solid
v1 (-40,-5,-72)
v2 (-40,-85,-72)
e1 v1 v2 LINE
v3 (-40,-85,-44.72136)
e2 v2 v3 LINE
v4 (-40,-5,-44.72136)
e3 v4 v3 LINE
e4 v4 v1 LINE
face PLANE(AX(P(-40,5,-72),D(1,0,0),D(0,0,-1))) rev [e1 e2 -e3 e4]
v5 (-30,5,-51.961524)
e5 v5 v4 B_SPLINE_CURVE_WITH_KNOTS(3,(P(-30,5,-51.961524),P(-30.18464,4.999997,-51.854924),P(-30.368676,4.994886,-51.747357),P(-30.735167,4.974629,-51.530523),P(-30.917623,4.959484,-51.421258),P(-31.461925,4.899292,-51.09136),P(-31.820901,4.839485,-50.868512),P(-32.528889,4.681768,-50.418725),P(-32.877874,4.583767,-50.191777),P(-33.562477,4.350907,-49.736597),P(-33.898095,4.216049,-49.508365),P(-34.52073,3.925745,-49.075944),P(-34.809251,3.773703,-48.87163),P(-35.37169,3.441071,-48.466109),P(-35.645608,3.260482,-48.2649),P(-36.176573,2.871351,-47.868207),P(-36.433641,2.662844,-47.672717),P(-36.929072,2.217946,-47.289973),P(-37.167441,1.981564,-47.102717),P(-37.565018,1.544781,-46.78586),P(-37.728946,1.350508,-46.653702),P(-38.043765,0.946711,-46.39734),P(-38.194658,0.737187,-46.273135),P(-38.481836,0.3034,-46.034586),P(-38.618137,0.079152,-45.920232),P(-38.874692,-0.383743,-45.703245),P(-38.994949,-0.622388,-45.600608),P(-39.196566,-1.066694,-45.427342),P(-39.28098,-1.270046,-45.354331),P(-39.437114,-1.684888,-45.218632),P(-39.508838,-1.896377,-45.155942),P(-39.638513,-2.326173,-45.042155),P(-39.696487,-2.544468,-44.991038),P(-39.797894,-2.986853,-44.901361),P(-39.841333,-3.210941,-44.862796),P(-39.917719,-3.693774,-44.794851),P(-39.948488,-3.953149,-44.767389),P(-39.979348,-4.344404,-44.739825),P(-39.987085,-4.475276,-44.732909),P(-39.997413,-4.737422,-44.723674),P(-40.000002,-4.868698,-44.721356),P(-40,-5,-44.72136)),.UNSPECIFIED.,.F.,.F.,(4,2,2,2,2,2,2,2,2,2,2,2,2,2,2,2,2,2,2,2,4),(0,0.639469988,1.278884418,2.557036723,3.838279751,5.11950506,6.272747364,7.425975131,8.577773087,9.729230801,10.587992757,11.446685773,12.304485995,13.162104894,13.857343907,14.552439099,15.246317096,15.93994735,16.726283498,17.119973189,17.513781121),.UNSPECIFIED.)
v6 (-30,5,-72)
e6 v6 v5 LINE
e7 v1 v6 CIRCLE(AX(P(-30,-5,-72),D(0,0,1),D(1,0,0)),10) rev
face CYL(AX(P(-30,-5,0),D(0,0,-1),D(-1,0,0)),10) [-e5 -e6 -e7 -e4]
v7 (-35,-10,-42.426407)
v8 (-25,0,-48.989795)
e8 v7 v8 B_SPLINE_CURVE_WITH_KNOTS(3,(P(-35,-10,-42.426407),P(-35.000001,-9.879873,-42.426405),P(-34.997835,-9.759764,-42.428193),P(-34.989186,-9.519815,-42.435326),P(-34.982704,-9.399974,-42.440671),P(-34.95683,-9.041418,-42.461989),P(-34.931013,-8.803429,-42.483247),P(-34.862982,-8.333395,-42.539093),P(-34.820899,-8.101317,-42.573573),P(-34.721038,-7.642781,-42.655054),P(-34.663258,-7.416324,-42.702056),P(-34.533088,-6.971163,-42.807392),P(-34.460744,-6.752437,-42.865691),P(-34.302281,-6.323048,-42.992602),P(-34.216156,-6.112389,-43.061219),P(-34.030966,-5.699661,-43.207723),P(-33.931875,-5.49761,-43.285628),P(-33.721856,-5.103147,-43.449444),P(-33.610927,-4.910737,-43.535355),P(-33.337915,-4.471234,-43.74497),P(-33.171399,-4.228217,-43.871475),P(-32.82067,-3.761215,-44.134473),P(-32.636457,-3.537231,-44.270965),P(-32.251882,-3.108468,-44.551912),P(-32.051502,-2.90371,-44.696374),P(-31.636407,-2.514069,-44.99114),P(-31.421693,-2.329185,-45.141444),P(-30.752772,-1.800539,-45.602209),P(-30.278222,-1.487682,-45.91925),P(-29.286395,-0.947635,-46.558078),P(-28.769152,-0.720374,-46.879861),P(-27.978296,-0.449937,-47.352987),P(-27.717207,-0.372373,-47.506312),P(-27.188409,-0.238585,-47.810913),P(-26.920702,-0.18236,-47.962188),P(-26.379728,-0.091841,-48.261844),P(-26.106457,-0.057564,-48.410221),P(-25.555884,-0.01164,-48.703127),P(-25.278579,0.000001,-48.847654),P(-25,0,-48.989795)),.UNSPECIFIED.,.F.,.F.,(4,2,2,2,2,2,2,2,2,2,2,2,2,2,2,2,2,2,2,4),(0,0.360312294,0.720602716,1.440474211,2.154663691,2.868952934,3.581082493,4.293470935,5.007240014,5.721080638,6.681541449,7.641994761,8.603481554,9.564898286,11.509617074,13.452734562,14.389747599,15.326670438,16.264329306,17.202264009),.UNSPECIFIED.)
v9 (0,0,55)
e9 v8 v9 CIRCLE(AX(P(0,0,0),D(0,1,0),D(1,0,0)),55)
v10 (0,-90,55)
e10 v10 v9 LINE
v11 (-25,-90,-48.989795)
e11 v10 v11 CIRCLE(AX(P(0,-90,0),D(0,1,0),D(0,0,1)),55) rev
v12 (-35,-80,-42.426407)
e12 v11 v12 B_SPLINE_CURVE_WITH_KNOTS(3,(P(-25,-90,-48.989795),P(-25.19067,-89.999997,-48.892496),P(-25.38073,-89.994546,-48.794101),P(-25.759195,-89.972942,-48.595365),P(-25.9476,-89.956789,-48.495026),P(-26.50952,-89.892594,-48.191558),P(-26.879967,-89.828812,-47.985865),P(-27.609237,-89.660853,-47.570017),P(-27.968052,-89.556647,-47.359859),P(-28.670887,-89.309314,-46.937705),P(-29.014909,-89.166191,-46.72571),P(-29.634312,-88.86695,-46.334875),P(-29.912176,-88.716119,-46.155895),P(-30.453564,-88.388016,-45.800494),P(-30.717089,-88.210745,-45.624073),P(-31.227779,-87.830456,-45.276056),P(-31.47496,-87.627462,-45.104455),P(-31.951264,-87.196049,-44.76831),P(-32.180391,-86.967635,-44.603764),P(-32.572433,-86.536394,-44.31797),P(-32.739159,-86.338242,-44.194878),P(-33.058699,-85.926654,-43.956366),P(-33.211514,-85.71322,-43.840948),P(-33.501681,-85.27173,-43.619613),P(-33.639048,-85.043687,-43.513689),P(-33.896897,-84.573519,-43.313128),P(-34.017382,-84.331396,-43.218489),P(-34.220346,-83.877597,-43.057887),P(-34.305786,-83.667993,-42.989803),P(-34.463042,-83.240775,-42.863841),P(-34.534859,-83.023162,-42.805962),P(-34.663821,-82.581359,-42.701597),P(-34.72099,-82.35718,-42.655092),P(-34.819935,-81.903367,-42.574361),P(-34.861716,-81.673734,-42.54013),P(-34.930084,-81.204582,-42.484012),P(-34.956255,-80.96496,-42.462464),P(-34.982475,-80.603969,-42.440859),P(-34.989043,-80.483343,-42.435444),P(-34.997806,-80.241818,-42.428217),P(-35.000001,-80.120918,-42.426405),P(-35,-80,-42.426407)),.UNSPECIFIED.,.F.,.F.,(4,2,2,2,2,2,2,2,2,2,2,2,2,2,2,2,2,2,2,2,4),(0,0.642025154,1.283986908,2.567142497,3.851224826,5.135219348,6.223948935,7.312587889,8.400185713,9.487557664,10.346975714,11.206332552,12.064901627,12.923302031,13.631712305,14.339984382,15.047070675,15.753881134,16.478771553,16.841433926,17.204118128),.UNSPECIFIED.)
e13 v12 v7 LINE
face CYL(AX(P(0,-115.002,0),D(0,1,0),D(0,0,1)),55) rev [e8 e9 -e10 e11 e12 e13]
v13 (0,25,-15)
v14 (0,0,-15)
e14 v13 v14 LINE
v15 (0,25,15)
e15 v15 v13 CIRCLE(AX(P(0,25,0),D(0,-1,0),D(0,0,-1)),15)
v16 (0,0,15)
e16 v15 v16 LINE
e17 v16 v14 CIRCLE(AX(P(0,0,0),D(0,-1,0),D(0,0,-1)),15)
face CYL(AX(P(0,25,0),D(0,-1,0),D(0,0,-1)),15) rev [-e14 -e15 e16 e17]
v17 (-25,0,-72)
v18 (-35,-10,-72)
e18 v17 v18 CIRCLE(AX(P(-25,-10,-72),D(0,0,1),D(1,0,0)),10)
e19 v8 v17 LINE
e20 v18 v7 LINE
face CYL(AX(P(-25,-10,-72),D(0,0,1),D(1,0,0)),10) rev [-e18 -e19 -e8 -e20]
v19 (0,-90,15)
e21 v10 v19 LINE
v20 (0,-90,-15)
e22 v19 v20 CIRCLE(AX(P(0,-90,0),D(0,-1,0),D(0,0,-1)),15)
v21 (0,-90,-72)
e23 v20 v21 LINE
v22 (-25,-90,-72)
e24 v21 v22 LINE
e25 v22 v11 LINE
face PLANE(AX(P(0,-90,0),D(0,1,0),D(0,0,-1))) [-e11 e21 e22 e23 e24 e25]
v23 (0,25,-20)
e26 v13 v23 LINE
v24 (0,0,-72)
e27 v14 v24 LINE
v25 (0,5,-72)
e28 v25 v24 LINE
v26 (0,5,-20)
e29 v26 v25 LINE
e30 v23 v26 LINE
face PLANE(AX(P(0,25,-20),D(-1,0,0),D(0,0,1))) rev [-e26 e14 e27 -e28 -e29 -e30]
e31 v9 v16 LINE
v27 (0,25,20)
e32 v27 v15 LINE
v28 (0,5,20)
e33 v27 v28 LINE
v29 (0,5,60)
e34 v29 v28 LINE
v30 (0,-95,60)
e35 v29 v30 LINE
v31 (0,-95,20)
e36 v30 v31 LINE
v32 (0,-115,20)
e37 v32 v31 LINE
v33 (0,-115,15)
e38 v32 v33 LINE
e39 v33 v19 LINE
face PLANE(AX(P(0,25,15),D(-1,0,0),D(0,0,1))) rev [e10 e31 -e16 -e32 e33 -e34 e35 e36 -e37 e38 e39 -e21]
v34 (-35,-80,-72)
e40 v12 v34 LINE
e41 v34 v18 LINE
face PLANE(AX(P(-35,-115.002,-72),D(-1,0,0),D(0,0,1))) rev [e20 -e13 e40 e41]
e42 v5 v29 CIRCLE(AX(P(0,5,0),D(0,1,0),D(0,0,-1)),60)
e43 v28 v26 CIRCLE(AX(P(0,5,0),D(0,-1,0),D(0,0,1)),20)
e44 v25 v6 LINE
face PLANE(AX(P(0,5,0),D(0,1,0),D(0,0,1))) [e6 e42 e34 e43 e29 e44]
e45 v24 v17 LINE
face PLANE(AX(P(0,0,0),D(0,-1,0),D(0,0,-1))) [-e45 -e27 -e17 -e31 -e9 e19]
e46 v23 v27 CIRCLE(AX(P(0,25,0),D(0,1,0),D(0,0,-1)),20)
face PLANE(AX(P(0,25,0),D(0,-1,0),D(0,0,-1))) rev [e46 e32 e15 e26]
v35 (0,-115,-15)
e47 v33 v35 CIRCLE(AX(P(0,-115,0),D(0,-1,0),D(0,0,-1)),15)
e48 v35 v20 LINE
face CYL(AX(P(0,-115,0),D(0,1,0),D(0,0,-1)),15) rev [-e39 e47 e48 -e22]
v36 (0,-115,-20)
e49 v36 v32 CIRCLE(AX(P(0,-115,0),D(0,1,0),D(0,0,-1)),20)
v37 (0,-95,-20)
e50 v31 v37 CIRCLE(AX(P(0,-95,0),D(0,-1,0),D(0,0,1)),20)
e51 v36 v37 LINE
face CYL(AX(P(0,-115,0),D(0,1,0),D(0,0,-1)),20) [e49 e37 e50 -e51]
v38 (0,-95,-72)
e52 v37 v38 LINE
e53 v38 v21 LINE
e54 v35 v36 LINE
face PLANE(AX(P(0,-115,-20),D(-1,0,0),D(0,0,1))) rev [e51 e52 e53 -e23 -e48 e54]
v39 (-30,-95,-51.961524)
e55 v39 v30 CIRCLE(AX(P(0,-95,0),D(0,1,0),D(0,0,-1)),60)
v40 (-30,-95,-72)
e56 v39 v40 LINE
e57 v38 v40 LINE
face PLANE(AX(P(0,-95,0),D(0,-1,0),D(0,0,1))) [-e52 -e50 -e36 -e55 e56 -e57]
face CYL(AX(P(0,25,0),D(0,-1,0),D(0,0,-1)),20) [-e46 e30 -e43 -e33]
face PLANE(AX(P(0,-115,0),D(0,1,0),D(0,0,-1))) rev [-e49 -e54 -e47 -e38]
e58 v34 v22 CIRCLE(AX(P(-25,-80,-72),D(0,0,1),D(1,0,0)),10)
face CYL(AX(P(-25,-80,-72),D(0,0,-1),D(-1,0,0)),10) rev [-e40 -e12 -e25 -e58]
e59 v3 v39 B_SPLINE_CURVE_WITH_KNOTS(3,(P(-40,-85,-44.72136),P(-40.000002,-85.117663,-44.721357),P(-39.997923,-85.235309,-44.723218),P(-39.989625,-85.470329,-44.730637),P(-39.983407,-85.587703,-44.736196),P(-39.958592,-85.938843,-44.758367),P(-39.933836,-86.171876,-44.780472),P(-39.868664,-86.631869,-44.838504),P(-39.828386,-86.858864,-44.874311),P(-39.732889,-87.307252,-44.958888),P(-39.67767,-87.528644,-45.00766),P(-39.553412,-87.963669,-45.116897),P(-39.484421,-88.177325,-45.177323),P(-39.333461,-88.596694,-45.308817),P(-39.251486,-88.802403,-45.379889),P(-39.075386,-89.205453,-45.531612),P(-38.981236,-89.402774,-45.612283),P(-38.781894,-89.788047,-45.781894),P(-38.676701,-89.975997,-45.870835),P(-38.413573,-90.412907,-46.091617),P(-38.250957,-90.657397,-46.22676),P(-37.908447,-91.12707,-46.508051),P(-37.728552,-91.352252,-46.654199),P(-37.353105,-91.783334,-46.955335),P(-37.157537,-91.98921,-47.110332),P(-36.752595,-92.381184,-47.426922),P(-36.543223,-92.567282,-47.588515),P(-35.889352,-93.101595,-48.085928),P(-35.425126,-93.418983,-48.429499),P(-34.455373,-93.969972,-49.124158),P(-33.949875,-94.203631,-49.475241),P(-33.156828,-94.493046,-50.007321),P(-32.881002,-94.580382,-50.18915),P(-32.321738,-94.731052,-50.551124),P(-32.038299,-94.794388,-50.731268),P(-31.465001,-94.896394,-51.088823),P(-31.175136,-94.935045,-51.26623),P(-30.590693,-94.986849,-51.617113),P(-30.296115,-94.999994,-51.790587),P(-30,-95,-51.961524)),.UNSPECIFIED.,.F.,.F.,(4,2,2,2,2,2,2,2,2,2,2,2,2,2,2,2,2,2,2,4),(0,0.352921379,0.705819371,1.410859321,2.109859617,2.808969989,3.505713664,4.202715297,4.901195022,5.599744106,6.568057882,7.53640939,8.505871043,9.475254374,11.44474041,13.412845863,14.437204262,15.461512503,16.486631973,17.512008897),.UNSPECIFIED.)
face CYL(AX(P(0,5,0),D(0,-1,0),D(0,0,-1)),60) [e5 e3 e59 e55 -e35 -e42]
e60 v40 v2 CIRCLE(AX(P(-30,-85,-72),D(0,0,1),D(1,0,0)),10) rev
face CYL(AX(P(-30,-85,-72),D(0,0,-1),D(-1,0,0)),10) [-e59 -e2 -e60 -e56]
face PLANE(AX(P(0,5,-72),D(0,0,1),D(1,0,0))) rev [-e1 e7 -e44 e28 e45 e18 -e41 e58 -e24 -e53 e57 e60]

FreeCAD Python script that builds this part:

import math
import FreeCAD as App
import Part
import Sketcher
Q = App.Units.Quantity


def edges_at(feature, points):
    """Names of the edges that pass closest to the given points."""
    edges = feature.Shape.Edges
    near = lambda p: min(range(len(edges)), key=lambda i: edges[i].distToShape(Part.Vertex(*p))[0])
    return sorted({f"Edge{near(p) + 1}" for p in points})

doc = App.newDocument("Part")
body = doc.addObject("PartDesign::Body", "Body")

sketch1 = doc.addObject("Sketcher::SketchObject", "Sketch")
body.addObject(sketch1)
sketch1.AttachmentSupport = (doc.XZ_Plane, [""])
sketch1.MapMode = "FlatFace"
sketch1.addGeometry([
    Part.LineSegment(App.Vector(0, -15, 0), App.Vector(0, -20, 0)),
    Part.ArcOfCircle(Part.Circle(App.Vector(0, 0, 0), App.Vector(0, 0, 1), 20), math.radians(90), math.radians(270)),
    Part.LineSegment(App.Vector(0, 20, 0), App.Vector(0, 15, 0)),
    Part.ArcOfCircle(Part.Circle(App.Vector(0, 0, 0), App.Vector(0, 0, 1), 15), math.radians(90), math.radians(270)),
], False)
sketch1.addConstraint([
    Sketcher.Constraint("Coincident", 0, 2, 1, 2),
    Sketcher.Constraint("Coincident", 1, 1, 2, 1),
    Sketcher.Constraint("Coincident", 2, 2, 3, 1),
    Sketcher.Constraint("Coincident", 3, 2, 0, 1),
    Sketcher.Constraint("Vertical", 0),
    Sketcher.Constraint("Vertical", 2),
    Sketcher.Constraint("Coincident", 1, 3, -1, 1),
    Sketcher.Constraint("Coincident", 3, 3, -1, 1),
    Sketcher.Constraint("PointOnObject", 0, 2, -2),
    Sketcher.Constraint("PointOnObject", 1, 1, -2),
    Sketcher.Constraint("Radius", 1, Q("20 mm")),
    Sketcher.Constraint("Radius", 3, Q("15 mm")),
])
pad1 = doc.addObject("PartDesign::Pad", "Pad")
body.addObject(pad1)
pad1.Profile = sketch1
pad1.Length = 25
pad1.Reversed = True

sketch2 = doc.addObject("Sketcher::SketchObject", "Sketch001")
body.addObject(sketch2)
sketch2.AttachmentSupport = (doc.XZ_Plane, [""])
sketch2.MapMode = "FlatFace"
sketch2.addGeometry([
    Part.LineSegment(App.Vector(0, -20, 0), App.Vector(0, -72, 0)),
    Part.LineSegment(App.Vector(0, -72, 0), App.Vector(-40, -72, 0)),
    Part.LineSegment(App.Vector(-40, -72, 0), App.Vector(-40, -45, 0)),
    Part.ArcOfCircle(Part.Circle(App.Vector(0, 0, 0), App.Vector(0, 0, 1), 60), math.radians(90), math.radians(228)),
    Part.LineSegment(App.Vector(0, 60, 0), App.Vector(0, 20, 0)),
    Part.ArcOfCircle(Part.Circle(App.Vector(0, 0, 0), App.Vector(0, 0, 1), 20), math.radians(90), math.radians(270)),
], False)
sketch2.addConstraint([
    Sketcher.Constraint("Coincident", 0, 2, 1, 1),
    Sketcher.Constraint("Coincident", 1, 2, 2, 1),
    Sketcher.Constraint("Coincident", 2, 2, 3, 2),
    Sketcher.Constraint("Coincident", 3, 1, 4, 1),
    Sketcher.Constraint("Coincident", 4, 2, 5, 1),
    Sketcher.Constraint("Coincident", 5, 2, 0, 1),
    Sketcher.Constraint("Vertical", 0),
    Sketcher.Constraint("Horizontal", 1),
    Sketcher.Constraint("Vertical", 2),
    Sketcher.Constraint("Vertical", 4),
    Sketcher.Constraint("Coincident", 3, 3, -1, 1),
    Sketcher.Constraint("Coincident", 5, 3, -1, 1),
    Sketcher.Constraint("PointOnObject", 0, 2, -2),
    Sketcher.Constraint("PointOnObject", 3, 1, -2),
    Sketcher.Constraint("Equal", 1, 4),
    Sketcher.Constraint("Radius", 3, Q("60 mm")),
    Sketcher.Constraint("Radius", 5, Q("20 mm")),
    Sketcher.Constraint("DistanceY", 0, 2, 0, 1, Q("52 mm")),
])
pad2 = doc.addObject("PartDesign::Pad", "Pad001")
body.addObject(pad2)
pad2.Profile = sketch2
pad2.Length = 5
pad2.Reversed = True
body2 = doc.addObject("PartDesign::Body", "Body001")
body2.AllowCompound = True
doc.recompute()

mirroring = doc.addObject("Part::Mirroring", "Mirroring")
mirroring.Source = body
mirroring.Base = App.Vector(0, -45, 0)
mirroring.Normal = App.Vector(0, 1, 0)
body2.BaseFeature = mirroring
doc.recompute()

boolean = doc.addObject("PartDesign::Boolean", "Boolean")
body2.addObject(boolean)
boolean.Type = "Fuse"
boolean.addObjects([body])

sketch3 = doc.addObject("Sketcher::SketchObject", "Sketch002")
body2.addObject(sketch3)
sketch3.AttachmentSupport = (doc.getObject("XZ_Plane001"), [""])
sketch3.MapMode = "FlatFace"
sketch3.addGeometry([
    Part.LineSegment(App.Vector(-40, -72, 0), App.Vector(-40, -45, 0)),
    Part.ArcOfCircle(Part.Circle(App.Vector(0, 0, 0), App.Vector(0, 0, 1), 60), math.radians(90), math.radians(228)),
    Part.LineSegment(App.Vector(0, 60, 0), App.Vector(0, 55, 0)),
    Part.ArcOfCircle(Part.Circle(App.Vector(0, 0, 0), App.Vector(0, 0, 1), 55), math.radians(90), math.radians(230)),
    Part.LineSegment(App.Vector(-35, -42, 0), App.Vector(-35, -72, 0)),
    Part.LineSegment(App.Vector(-35, -72, 0), App.Vector(-40, -72, 0)),
], False)
sketch3.addConstraint([
    Sketcher.Constraint("Coincident", 0, 2, 1, 2),
    Sketcher.Constraint("Coincident", 1, 1, 2, 1),
    Sketcher.Constraint("Coincident", 2, 2, 3, 1),
    Sketcher.Constraint("Coincident", 3, 2, 4, 1),
    Sketcher.Constraint("Coincident", 4, 2, 5, 1),
    Sketcher.Constraint("Coincident", 5, 2, 0, 1),
    Sketcher.Constraint("Vertical", 0),
    Sketcher.Constraint("Vertical", 2),
    Sketcher.Constraint("Vertical", 4),
    Sketcher.Constraint("Horizontal", 5),
    Sketcher.Constraint("Coincident", 1, 3, -1, 1),
    Sketcher.Constraint("Coincident", 3, 3, -1, 1),
    Sketcher.Constraint("PointOnObject", 1, 1, -2),
    Sketcher.Constraint("Equal", 5, 2),
    Sketcher.Constraint("Radius", 1, Q("60 mm")),
    Sketcher.Constraint("Radius", 3, Q("55 mm")),
    Sketcher.Constraint("DistanceX", 0, 2, -1, 1, Q("40 mm")),
    Sketcher.Constraint("DistanceY", 4, 2, -1, 1, Q("72 mm")),
])
pad3 = doc.addObject("PartDesign::Pad", "Pad002")
body2.addObject(pad3)
pad3.Profile = sketch3
pad3.Type = "UpToFirst"
doc.recompute()

fillet = doc.addObject("PartDesign::Fillet", "Fillet")
body2.addObject(fillet)
fillet.Base = (pad3, edges_at(pad3, [(-40, 5, -58.361)]))
fillet.Radius = 10
doc.recompute()

fillet2 = doc.addObject("PartDesign::Fillet", "Fillet001")
body2.addObject(fillet2)
fillet2.Base = (fillet, edges_at(fillet, [(-40, -95, -58.361)]))
fillet2.Radius = 10
doc.recompute()

fillet3 = doc.addObject("PartDesign::Fillet", "Fillet002")
body2.addObject(fillet3)
fillet3.Base = (fillet2, edges_at(fillet2, [(-35, 0, -57.213)]))
fillet3.Radius = 10
doc.recompute()

fillet4 = doc.addObject("PartDesign::Fillet", "Fillet003")
body2.addObject(fillet4)
fillet4.Base = (fillet3, edges_at(fillet3, [(-35, -90, -57.213)]))
fillet4.Radius = 10
mirroring.Visibility = False

doc.recompute()
